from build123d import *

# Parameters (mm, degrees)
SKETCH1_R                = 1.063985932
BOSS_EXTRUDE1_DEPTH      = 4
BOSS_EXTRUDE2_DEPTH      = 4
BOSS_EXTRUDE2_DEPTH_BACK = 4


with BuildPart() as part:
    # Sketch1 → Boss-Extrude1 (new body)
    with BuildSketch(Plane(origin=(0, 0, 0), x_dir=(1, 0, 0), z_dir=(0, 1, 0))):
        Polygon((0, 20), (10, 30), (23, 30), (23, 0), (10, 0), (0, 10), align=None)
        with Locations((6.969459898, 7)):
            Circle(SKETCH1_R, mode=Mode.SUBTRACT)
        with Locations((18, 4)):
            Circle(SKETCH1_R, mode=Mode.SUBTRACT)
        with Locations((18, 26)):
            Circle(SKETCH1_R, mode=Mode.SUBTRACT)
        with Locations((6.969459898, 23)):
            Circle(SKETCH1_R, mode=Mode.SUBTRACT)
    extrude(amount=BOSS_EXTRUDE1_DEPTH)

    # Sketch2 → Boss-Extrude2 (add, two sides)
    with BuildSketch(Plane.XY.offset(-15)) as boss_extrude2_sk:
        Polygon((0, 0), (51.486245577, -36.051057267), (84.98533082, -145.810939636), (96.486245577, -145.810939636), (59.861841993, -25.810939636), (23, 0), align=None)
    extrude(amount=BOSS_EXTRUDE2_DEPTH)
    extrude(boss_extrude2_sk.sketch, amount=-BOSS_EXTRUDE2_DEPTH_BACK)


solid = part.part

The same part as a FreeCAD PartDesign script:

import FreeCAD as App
import Part
import Sketcher
from FreeCAD import Vector
Q = App.Units.Quantity

doc = App.newDocument("Part")
body = doc.addObject("PartDesign::Body", "Body")

# Sketch on XZ plane
sketch1 = body.newObject("Sketcher::SketchObject", "Sketch")
sketch1.AttachmentSupport = (doc.getObject("XZ_Plane"), [""])
sketch1.MapMode = "FlatFace"
sketch1.addGeometry([
    Part.LineSegment(Vector(10, -30, 0), Vector(0, -20, 0)),  # 0
    Part.LineSegment(Vector(0, -20, 0), Vector(0, -10, 0)),  # 1
    Part.LineSegment(Vector(0, -10, 0), Vector(10, 0, 0)),  # 2
    Part.LineSegment(Vector(10, 0, 0), Vector(23, 0, 0)),  # 3
    Part.LineSegment(Vector(23, 0, 0), Vector(23, -30, 0)),  # 4
    Part.LineSegment(Vector(23, -30, 0), Vector(10, -30, 0)),  # 5
    Part.Circle(Vector(18, -4, 0), Vector(0, 0, 1), 1.1),  # 6
    Part.Circle(Vector(7, -7, 0), Vector(0, 0, 1), 1.1),  # 7
    Part.Circle(Vector(18, -26, 0), Vector(0, 0, 1), 1.1),  # 8
    Part.Circle(Vector(7, -23, 0), Vector(0, 0, 1), 1.1),  # 9
], False)
sketch1.addConstraint([
    Sketcher.Constraint("Coincident", 0, 2, 1, 1),
    Sketcher.Constraint("Coincident", 1, 2, 2, 1),
    Sketcher.Constraint("Coincident", 2, 2, 3, 1),
    Sketcher.Constraint("Coincident", 3, 2, 4, 1),
    Sketcher.Constraint("Coincident", 4, 2, 5, 1),
    Sketcher.Constraint("Coincident", 5, 2, 0, 1),
    Sketcher.Constraint("Vertical", 1),
    Sketcher.Constraint("Horizontal", 3),
    Sketcher.Constraint("Vertical", 4),
    Sketcher.Constraint("Horizontal", 5),
    Sketcher.Constraint("Equal", 6, 7),
    Sketcher.Constraint("Equal", 7, 8),
    Sketcher.Constraint("Equal", 8, 9),
    Sketcher.Constraint("PointOnObject", 0, 2, -2),
    Sketcher.Constraint("PointOnObject", 2, 2, -1),
    Sketcher.Constraint("Perpendicular", 0, 2),
    Sketcher.Constraint("Vertical", 6, 3, 8, 3),
    Sketcher.Constraint("Vertical", 7, 3, 9, 3),
    Sketcher.Constraint("Vertical", 2, 2, 5, 2),
    Sketcher.Constraint("Equal", 0, 2),
    Sketcher.Constraint("DistanceX", 3, 1, 3, 2, 13.0),
    Sketcher.Constraint("DistanceY", 1, 1, 1, 2, 10.0),
    Sketcher.Constraint("DistanceY", 4, 2, 4, 1, 30.0),
    Sketcher.Constraint("DistanceX", -1, 1, 6, 3, 18.0),
    Sketcher.Constraint("DistanceY", 6, 3, -1, 1, 4.0),
    Sketcher.Constraint("DistanceY", 7, 3, -1, 1, 7.0),
    Sketcher.Constraint("DistanceY", 8, 3, -1, 1, 26.0),
    Sketcher.Constraint("DistanceY", 9, 3, -1, 1, 23.0),
    Sketcher.Constraint("Diameter", 6, 2.127972),
    Sketcher.Constraint("DistanceX", -1, 1, 7, 3, 6.96946),
])
pad1 = body.newObject("PartDesign::Pad", "Pad")
pad1.Profile = sketch1
pad1.Length = 4
pad1.Reversed = True

# Sketch on XY plane
sketch2 = body.newObject("Sketcher::SketchObject", "Sketch001")
sketch2.AttachmentSupport = (doc.getObject("XY_Plane"), [""])
sketch2.MapMode = "FlatFace"
sketch2.AttachmentOffset = App.Placement(Vector(0, 0, -15), App.Rotation())
sketch2.addGeometry([
    Part.LineSegment(Vector(0, 0, 0), Vector(51, -36, 0)),  # 0
    Part.LineSegment(Vector(51, -36, 0), Vector(85, -146, 0)),  # 1
    Part.LineSegment(Vector(85, -146, 0), Vector(96, -146, 0)),  # 2
    Part.LineSegment(Vector(96, -146, 0), Vector(60, -26, 0)),  # 3
    Part.LineSegment(Vector(60, -26, 0), Vector(23, 0, 0)),  # 4
    Part.LineSegment(Vector(23, 0, 0), Vector(0, 0, 0)),  # 5
], False)
sketch2.addConstraint([
    Sketcher.Constraint("Coincident", 0, 2, 1, 1),
    Sketcher.Constraint("Coincident", 1, 2, 2, 1),
    Sketcher.Constraint("Coincident", 2, 2, 3, 1),
    Sketcher.Constraint("Coincident", 3, 2, 4, 1),
    Sketcher.Constraint("Coincident", 4, 2, 5, 1),
    Sketcher.Constraint("Coincident", 5, 2, 0, 1),
    Sketcher.Constraint("Horizontal", 2),
    Sketcher.Constraint("Horizontal", 5),
    Sketcher.Constraint("Coincident", 5, 2, -1, 1),
    Sketcher.Constraint("Parallel", 1, 3),
    Sketcher.Constraint("Parallel", 0, 4),
    Sketcher.Constraint("DistanceX", 5, 2, 5, 1, 23.0),
    Sketcher.Constraint("Angle", 0, Q("-35 deg")),
    Sketcher.Constraint("Distance", 4, 45.0),
    Sketcher.Constraint("DistanceX", 0, 2, 2, 2, 45.0),
    Sketcher.Constraint("DistanceY", 1, 2, 3, 2, 120.0),
    Sketcher.Constraint("Distance", 0, 62.8531),
])
pad2 = body.newObject("PartDesign::Pad", "Pad001")
pad2.Profile = sketch2
pad2.Type = "TwoLengths"
pad2.Length = 4
pad2.Length2 = 4

doc.recompute()
